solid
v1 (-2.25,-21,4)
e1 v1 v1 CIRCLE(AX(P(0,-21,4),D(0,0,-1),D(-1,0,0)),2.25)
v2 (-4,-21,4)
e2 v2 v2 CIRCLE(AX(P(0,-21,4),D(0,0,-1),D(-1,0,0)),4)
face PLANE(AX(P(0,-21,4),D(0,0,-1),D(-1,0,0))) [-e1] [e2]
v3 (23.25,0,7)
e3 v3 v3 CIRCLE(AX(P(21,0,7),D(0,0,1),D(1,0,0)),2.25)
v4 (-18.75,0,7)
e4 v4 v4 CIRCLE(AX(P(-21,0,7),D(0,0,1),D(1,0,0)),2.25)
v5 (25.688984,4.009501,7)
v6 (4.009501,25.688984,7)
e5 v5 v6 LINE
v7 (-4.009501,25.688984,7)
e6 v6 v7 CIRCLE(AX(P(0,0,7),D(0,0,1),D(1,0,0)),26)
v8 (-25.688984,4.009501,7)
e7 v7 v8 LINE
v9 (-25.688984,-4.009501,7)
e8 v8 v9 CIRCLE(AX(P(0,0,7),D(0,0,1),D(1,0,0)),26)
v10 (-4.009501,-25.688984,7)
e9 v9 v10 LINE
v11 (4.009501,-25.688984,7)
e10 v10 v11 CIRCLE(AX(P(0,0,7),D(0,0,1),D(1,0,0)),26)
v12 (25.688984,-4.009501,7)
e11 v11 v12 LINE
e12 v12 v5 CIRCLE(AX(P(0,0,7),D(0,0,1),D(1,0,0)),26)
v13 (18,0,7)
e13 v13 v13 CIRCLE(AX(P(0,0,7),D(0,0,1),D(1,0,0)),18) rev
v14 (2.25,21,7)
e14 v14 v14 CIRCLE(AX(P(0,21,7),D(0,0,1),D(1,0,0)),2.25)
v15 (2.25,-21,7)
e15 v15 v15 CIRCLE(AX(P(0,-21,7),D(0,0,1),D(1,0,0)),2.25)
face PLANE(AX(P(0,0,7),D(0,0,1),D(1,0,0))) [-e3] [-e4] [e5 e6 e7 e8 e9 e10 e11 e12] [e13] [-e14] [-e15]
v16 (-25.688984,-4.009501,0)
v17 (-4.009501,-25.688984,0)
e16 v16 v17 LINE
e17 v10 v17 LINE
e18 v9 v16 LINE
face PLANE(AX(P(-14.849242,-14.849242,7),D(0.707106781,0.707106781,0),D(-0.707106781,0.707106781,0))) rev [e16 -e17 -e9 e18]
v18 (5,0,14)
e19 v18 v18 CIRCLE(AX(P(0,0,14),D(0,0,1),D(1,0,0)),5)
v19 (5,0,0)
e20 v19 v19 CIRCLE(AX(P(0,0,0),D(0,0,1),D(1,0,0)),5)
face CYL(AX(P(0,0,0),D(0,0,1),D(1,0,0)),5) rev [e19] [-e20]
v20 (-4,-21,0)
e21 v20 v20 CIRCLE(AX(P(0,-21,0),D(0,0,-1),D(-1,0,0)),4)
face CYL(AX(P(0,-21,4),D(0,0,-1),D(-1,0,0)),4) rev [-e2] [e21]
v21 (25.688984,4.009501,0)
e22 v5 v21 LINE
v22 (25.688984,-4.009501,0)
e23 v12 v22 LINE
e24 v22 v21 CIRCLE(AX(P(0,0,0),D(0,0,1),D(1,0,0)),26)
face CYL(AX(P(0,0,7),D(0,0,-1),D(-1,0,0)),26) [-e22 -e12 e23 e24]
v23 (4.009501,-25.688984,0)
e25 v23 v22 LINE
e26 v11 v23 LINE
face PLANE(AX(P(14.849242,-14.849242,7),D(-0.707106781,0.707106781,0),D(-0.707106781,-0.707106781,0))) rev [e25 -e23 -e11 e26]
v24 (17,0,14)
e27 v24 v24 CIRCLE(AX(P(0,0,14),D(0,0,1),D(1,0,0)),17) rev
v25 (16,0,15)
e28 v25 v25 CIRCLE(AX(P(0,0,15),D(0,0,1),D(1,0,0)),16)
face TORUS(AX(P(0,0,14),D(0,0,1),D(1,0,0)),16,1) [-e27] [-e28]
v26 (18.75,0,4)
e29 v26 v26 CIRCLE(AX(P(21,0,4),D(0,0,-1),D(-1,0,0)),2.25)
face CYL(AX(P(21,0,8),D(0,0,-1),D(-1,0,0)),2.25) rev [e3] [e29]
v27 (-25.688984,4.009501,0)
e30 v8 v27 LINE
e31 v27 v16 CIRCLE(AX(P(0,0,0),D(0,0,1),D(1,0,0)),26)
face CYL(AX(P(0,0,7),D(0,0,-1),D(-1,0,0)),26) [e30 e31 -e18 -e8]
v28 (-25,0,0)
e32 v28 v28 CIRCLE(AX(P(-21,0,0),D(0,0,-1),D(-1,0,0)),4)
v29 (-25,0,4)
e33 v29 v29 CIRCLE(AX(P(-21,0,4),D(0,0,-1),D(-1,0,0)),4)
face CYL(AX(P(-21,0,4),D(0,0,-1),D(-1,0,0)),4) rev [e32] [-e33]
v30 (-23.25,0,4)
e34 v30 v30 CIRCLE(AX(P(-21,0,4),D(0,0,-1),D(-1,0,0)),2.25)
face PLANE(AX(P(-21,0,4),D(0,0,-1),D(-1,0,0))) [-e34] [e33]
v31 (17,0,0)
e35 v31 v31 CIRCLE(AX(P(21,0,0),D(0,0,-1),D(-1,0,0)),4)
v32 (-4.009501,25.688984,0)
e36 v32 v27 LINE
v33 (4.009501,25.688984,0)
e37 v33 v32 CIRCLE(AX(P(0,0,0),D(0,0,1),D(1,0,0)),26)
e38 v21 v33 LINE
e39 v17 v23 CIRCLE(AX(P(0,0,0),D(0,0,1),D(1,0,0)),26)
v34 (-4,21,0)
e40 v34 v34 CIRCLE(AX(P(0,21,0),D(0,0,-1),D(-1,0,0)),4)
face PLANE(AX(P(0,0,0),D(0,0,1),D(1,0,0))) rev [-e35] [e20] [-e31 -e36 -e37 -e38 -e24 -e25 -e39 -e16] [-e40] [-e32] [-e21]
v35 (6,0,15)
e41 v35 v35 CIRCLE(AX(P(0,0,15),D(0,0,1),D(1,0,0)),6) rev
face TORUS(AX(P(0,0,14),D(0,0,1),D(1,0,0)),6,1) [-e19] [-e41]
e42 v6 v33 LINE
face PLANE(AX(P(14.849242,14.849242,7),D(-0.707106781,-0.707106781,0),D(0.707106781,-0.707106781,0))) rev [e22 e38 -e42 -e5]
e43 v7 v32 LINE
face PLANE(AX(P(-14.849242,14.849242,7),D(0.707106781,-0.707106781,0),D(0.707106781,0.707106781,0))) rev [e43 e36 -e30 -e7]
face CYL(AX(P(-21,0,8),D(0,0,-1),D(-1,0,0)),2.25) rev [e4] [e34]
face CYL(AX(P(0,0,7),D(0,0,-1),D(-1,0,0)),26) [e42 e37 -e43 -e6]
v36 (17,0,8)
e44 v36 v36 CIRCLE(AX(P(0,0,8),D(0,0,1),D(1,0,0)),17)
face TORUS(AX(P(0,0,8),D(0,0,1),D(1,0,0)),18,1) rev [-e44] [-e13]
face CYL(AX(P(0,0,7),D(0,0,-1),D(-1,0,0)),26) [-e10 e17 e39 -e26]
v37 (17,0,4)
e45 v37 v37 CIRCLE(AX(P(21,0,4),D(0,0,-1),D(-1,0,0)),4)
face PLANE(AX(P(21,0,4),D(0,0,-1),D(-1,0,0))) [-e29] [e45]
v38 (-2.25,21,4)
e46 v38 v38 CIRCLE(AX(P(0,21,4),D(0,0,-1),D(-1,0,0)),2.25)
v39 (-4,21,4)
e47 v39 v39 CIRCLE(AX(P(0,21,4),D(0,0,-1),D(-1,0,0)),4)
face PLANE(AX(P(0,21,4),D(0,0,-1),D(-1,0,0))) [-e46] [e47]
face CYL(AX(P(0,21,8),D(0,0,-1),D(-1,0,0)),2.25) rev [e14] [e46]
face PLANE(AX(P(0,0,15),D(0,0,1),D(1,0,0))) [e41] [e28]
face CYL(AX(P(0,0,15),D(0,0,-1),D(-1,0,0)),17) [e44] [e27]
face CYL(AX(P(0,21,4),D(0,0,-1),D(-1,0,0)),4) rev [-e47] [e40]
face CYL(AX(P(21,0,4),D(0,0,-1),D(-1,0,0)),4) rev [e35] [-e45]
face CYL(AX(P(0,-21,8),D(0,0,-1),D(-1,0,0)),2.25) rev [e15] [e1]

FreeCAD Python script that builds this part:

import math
import FreeCAD as App
import Part
import Sketcher


def edges_at(feature, points):
    """Names of the edges that pass closest to the given points."""
    edges = feature.Shape.Edges
    near = lambda p: min(range(len(edges)), key=lambda i: edges[i].distToShape(Part.Vertex(*p))[0])
    return sorted({f"Edge{near(p) + 1}" for p in points})

doc = App.newDocument("Part")
body = doc.addObject("PartDesign::Body", "Body")

# Sketch on XY plane
sketch1 = doc.addObject("Sketcher::SketchObject", "Sketch")
body.addObject(sketch1)
sketch1.AttachmentSupport = (doc.XY_Plane, [""])
sketch1.MapMode = "FlatFace"
sketch1.addGeometry([
    Part.ArcOfCircle(Part.Circle(App.Vector(0, 0, 0), App.Vector(0, 0, 1), 26), math.radians(171.13), math.radians(188.87)),  # 0
    Part.LineSegment(App.Vector(-26, -4, 0), App.Vector(-4, -26, 0)),  # 1
    Part.ArcOfCircle(Part.Circle(App.Vector(0, 0, 0), App.Vector(0, 0, 1), 26), math.radians(-98.87), math.radians(-81.13)),  # 2
    Part.LineSegment(App.Vector(4, -26, 0), App.Vector(26, -4, 0)),  # 3
    Part.ArcOfCircle(Part.Circle(App.Vector(0, 0, 0), App.Vector(0, 0, 1), 26), math.radians(-8.87), math.radians(8.87)),  # 4
    Part.LineSegment(App.Vector(26, 4, 0), App.Vector(4, 26, 0)),  # 5
    Part.ArcOfCircle(Part.Circle(App.Vector(0, 0, 0), App.Vector(0, 0, 1), 26), math.radians(81.13), math.radians(98.87)),  # 6
    Part.LineSegment(App.Vector(-4, 26, 0), App.Vector(-26, 4, 0)),  # 7
], False)
sketch1.addConstraint([
    Sketcher.Constraint("Coincident", 0, 2, 1, 1),
    Sketcher.Constraint("Coincident", 1, 2, 2, 1),
    Sketcher.Constraint("Coincident", 2, 2, 3, 1),
    Sketcher.Constraint("Coincident", 3, 2, 4, 1),
    Sketcher.Constraint("Coincident", 4, 2, 5, 1),
    Sketcher.Constraint("Coincident", 5, 2, 6, 1),
    Sketcher.Constraint("Coincident", 6, 2, 7, 1),
    Sketcher.Constraint("Coincident", 7, 2, 0, 1),
    Sketcher.Constraint("Coincident", 0, 3, -1, 1),
    Sketcher.Constraint("Coincident", 2, 3, -1, 1),
    Sketcher.Constraint("Coincident", 4, 3, -1, 1),
    Sketcher.Constraint("Coincident", 6, 3, -1, 1),
    Sketcher.Constraint("Equal", 0, 2),
    Sketcher.Constraint("Equal", 2, 4),
    Sketcher.Constraint("Equal", 4, 6),
    Sketcher.Constraint("Perpendicular", 1, 3),
    Sketcher.Constraint("Perpendicular", 3, 5),
    Sketcher.Constraint("Perpendicular", 5, 7),
    Sketcher.Constraint("Horizontal", 1, 2, 2, 2),
    Sketcher.Constraint("Horizontal", 0, 2, 3, 2),
    Sketcher.Constraint("Horizontal", 5, 2, 6, 2),
    Sketcher.Constraint("Vertical", 3, 2, 4, 2),
    Sketcher.Constraint("Radius", 0, 26.0),
    Sketcher.Constraint("DistanceX", 1, 2, 2, 2, 8.019001),
])
pad1 = doc.addObject("PartDesign::Pad", "Pad")
body.addObject(pad1)
pad1.Profile = sketch1
pad1.Length = 7

# Sketch on XY plane
sketch2 = doc.addObject("Sketcher::SketchObject", "Sketch001")
body.addObject(sketch2)
sketch2.AttachmentSupport = (doc.XY_Plane, [""])
sketch2.MapMode = "FlatFace"
sketch2.addGeometry([
    Part.Circle(App.Vector(0, 21, 0), App.Vector(0, 0, 1), 4),
    Part.Circle(App.Vector(21, 0, 0), App.Vector(0, 0, 1), 4),
    Part.Circle(App.Vector(0, -21, 0), App.Vector(0, 0, 1), 4),
    Part.Circle(App.Vector(-21, 0, 0), App.Vector(0, 0, 1), 4),
], False)
sketch2.addConstraint([
    Sketcher.Constraint("Equal", 0, 1),
    Sketcher.Constraint("Equal", 1, 2),
    Sketcher.Constraint("Equal", 2, 3),
    Sketcher.Constraint("Symmetric", 0, 3, 2, 3, -1, 1),
    Sketcher.Constraint("Symmetric", 1, 3, 3, 3, -1, 1),
    Sketcher.Constraint("PointOnObject", 0, 3, -2),
    Sketcher.Constraint("PointOnObject", 1, 3, -1),
    Sketcher.Constraint("Diameter", 0, 8.0),
    Sketcher.Constraint("DistanceY", -1, 1, 0, 3, 21.0),
    Sketcher.Constraint("DistanceX", -1, 1, 1, 3, 21.0),
])
pocket1 = doc.addObject("PartDesign::Pocket", "Pocket")
body.addObject(pocket1)
pocket1.Profile = sketch2
pocket1.Length = 4
pocket1.Reversed = True

# Sketch on XY plane
sketch3 = doc.addObject("Sketcher::SketchObject", "Sketch002")
body.addObject(sketch3)
sketch3.AttachmentSupport = (doc.XY_Plane, [""])
sketch3.MapMode = "FlatFace"
sketch3.AttachmentOffset = App.Placement(App.Vector(0, 0, 4), App.Rotation())
sketch3.addGeometry([
    Part.Circle(App.Vector(0, 21, 0), App.Vector(0, 0, 1), 2.2),
    Part.Circle(App.Vector(21, 0, 0), App.Vector(0, 0, 1), 2.2),
    Part.Circle(App.Vector(-21, 0, 0), App.Vector(0, 0, 1), 2.2),
    Part.Circle(App.Vector(0, -21, 0), App.Vector(0, 0, 1), 2.2),
], False)
sketch3.addConstraint([
    Sketcher.Constraint("Equal", 0, 1),
    Sketcher.Constraint("Equal", 1, 2),
    Sketcher.Constraint("Equal", 2, 3),
    Sketcher.Constraint("Symmetric", 1, 3, 2, 3, -1, 1),
    Sketcher.Constraint("Symmetric", 0, 3, 3, 3, -1, 1),
    Sketcher.Constraint("PointOnObject", 0, 3, -2),
    Sketcher.Constraint("PointOnObject", 1, 3, -1),
    Sketcher.Constraint("Diameter", 0, 4.5),
    Sketcher.Constraint("DistanceY", -1, 1, 0, 3, 21.0),
    Sketcher.Constraint("DistanceX", -1, 1, 1, 3, 21.0),
])
pocket2 = doc.addObject("PartDesign::Pocket", "Pocket001")
body.addObject(pocket2)
pocket2.Profile = sketch3
pocket2.Length = 4
pocket2.Reversed = True

# Sketch on XY plane
sketch4 = doc.addObject("Sketcher::SketchObject", "Sketch003")
body.addObject(sketch4)
sketch4.AttachmentSupport = (doc.XY_Plane, [""])
sketch4.MapMode = "FlatFace"
sketch4.AttachmentOffset = App.Placement(App.Vector(0, 0, 7), App.Rotation())
sketch4.addGeometry(Part.Circle(App.Vector(0, 0, 0), App.Vector(0, 0, 1), 17), False)
sketch4.addConstraint([
    Sketcher.Constraint("Coincident", 0, 3, -1, 1),
    Sketcher.Constraint("Diameter", 0, 34.0),
])
pad2 = doc.addObject("PartDesign::Pad", "Pad001")
body.addObject(pad2)
pad2.Profile = sketch4
pad2.Length = 8

# Sketch on XY plane
sketch5 = doc.addObject("Sketcher::SketchObject", "Sketch004")
body.addObject(sketch5)
sketch5.AttachmentSupport = (doc.XY_Plane, [""])
sketch5.MapMode = "FlatFace"
sketch5.AttachmentOffset = App.Placement(App.Vector(0, 0, 15), App.Rotation())
sketch5.addGeometry(Part.Circle(App.Vector(0, 0, 0), App.Vector(0, 0, 1), 5), False)
sketch5.addConstraint([
    Sketcher.Constraint("Coincident", 0, 3, -1, 1),
    Sketcher.Constraint("Diameter", 0, 10.0),
])
pocket3 = doc.addObject("PartDesign::Pocket", "Pocket002")
body.addObject(pocket3)
pocket3.Profile = sketch5
pocket3.Length = 15
doc.recompute()

fillet = doc.addObject("PartDesign::Fillet", "Fillet")
body.addObject(fillet)
fillet.Base = (pocket3, edges_at(pocket3, [(-17, 0, 7), (-17, 0, 15), (-5, 0, 15)]))
fillet.Radius = 1

doc.recompute()
